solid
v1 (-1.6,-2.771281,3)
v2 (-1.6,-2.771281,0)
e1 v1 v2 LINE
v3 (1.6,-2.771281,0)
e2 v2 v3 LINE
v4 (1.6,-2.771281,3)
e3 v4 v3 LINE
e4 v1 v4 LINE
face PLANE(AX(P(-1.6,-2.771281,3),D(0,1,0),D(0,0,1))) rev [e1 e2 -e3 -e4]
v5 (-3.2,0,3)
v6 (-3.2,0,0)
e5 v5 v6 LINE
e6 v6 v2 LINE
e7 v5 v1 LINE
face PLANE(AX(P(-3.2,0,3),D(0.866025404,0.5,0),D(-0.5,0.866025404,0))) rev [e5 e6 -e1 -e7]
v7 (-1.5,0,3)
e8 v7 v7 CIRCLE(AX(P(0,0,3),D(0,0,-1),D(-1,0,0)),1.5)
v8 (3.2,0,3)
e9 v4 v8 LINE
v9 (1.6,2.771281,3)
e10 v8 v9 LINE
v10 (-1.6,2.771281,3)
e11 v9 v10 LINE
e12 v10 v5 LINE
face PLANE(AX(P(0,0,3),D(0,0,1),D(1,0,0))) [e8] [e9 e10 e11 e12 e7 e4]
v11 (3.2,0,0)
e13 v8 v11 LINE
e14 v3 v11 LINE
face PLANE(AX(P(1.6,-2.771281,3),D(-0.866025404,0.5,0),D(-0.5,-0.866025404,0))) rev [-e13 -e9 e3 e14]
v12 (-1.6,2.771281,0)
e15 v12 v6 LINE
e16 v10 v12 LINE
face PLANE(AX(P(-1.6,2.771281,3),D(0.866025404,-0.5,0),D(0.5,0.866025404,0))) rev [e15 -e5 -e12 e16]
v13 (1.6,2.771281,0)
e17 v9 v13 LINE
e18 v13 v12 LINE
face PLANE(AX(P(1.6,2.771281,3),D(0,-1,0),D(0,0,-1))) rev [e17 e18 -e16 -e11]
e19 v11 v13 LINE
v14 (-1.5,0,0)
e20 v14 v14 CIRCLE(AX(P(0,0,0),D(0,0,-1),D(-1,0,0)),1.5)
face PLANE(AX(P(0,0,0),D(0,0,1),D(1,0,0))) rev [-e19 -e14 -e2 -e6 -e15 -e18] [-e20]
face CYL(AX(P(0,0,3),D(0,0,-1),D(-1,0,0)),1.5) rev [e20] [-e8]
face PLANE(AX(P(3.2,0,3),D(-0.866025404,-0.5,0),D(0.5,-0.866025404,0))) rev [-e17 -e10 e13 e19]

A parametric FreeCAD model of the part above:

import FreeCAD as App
import Part
import Sketcher

V = App.Vector
Q = App.Units.Quantity


def add_polygon(sketch, points):
    """Adds a closed chain of lines whose ends are joined by coincident constraints."""
    first, n = sketch.GeometryCount, len(points)
    for a, b in zip(points, points[1:] + points[:1]):
        sketch.addGeometry(Part.LineSegment(App.Vector(*a, 0), App.Vector(*b, 0)), False)
    for i in range(n):
        sketch.addConstraint(Sketcher.Constraint("Coincident", first + i, 2, first + (i + 1) % n, 1))

doc = App.newDocument("Part")
body = doc.addObject("PartDesign::Body", "Body")

# Sketch on XY plane
sketch1 = doc.addObject("Sketcher::SketchObject", "Sketch")
body.addObject(sketch1)
sketch1.AttachmentSupport = (doc.XY_Plane, [""])
sketch1.MapMode = "FlatFace"
add_polygon(sketch1, [(1.6, 2.8), (-1.6, 2.8), (-3.2, 0), (-1.6, -2.8), (1.6, -2.8), (3.2, 0)])  # lines 0-5
sketch1.addConstraint([
    Sketcher.Constraint("Horizontal", 0),
    Sketcher.Constraint("Horizontal", 3),
    Sketcher.Constraint("Symmetric", 0, 2, 3, 2, -1, 1),
    Sketcher.Constraint("Symmetric", 1, 2, 4, 2, -1, 1),
    Sketcher.Constraint("PointOnObject", 1, 2, -1),
    Sketcher.Constraint("Parallel", 2, 5),
    Sketcher.Constraint("Vertical", 0, 2, 2, 2),
    Sketcher.Constraint("Angle", 1, Q("-120 deg")),
    Sketcher.Constraint("DistanceX", 0, 2, 0, 1, 3.2),
    Sketcher.Constraint("Distance", 1, 3.2),
])
pad1 = doc.addObject("PartDesign::Pad", "Pad")
body.addObject(pad1)
pad1.Profile = sketch1
pad1.Length = 3

# Sketch on XY plane
sketch2 = doc.addObject("Sketcher::SketchObject", "Sketch001")
body.addObject(sketch2)
sketch2.AttachmentSupport = (doc.XY_Plane, [""])
sketch2.MapMode = "FlatFace"
sketch2.addGeometry(Part.Circle(V(0, 0, 0), V(0, 0, 1), 1.5), False)
sketch2.addConstraint([
    Sketcher.Constraint("Coincident", 0, 3, -1, 1),
    Sketcher.Constraint("Diameter", 0, 3.0),
])
pocket1 = doc.addObject("PartDesign::Pocket", "Pocket")
body.addObject(pocket1)
pocket1.Profile = sketch2
pocket1.Length = 3
pocket1.Reversed = True

doc.recompute()
